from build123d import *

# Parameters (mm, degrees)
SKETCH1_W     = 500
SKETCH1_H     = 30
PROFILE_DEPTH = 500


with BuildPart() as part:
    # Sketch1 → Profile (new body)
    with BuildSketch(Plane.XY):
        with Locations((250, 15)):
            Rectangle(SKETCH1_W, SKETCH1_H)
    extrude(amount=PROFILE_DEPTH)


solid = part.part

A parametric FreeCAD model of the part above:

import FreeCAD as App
import Part
import Sketcher

V = App.Vector

doc = App.newDocument("Part")
body = doc.addObject("PartDesign::Body", "Body")

sketch1 = body.newObject("Sketcher::SketchObject", "Sketch")
sketch1.AttachmentSupport = (doc.getObject("XY_Plane"), [""])
sketch1.MapMode = "FlatFace"
sketch1.addGeometry(Part.LineSegment(V(0, 30, 0), V(0, 0, 0)), False)
sketch1.addGeometry(Part.LineSegment(V(0, 0, 0), V(500, 0, 0)), False)
sketch1.addGeometry(Part.LineSegment(V(500, 0, 0), V(500, 30, 0)), False)
sketch1.addGeometry(Part.LineSegment(V(500, 30, 0), V(0, 30, 0)), False)
sketch1.addConstraint(Sketcher.Constraint("Coincident", 0, 2, 1, 1))
sketch1.addConstraint(Sketcher.Constraint("Coincident", 1, 2, 2, 1))
sketch1.addConstraint(Sketcher.Constraint("Coincident", 2, 2, 3, 1))
sketch1.addConstraint(Sketcher.Constraint("Coincident", 3, 2, 0, 1))
sketch1.addConstraint(Sketcher.Constraint("Vertical", 0))
sketch1.addConstraint(Sketcher.Constraint("Horizontal", 1))
sketch1.addConstraint(Sketcher.Constraint("Vertical", 2))
sketch1.addConstraint(Sketcher.Constraint("Horizontal", 3))
sketch1.addConstraint(Sketcher.Constraint("Coincident", 0, 2, -1, 1))
sketch1.addConstraint(Sketcher.Constraint("DistanceX", 1, 1, 1, 2, 500.0))
sketch1.addConstraint(Sketcher.Constraint("DistanceY", 0, 2, 0, 1, 30.0))
pad1 = body.newObject("PartDesign::Pad", "Pad")
pad1.Profile = sketch1
pad1.Length = 500

doc.recompute()
